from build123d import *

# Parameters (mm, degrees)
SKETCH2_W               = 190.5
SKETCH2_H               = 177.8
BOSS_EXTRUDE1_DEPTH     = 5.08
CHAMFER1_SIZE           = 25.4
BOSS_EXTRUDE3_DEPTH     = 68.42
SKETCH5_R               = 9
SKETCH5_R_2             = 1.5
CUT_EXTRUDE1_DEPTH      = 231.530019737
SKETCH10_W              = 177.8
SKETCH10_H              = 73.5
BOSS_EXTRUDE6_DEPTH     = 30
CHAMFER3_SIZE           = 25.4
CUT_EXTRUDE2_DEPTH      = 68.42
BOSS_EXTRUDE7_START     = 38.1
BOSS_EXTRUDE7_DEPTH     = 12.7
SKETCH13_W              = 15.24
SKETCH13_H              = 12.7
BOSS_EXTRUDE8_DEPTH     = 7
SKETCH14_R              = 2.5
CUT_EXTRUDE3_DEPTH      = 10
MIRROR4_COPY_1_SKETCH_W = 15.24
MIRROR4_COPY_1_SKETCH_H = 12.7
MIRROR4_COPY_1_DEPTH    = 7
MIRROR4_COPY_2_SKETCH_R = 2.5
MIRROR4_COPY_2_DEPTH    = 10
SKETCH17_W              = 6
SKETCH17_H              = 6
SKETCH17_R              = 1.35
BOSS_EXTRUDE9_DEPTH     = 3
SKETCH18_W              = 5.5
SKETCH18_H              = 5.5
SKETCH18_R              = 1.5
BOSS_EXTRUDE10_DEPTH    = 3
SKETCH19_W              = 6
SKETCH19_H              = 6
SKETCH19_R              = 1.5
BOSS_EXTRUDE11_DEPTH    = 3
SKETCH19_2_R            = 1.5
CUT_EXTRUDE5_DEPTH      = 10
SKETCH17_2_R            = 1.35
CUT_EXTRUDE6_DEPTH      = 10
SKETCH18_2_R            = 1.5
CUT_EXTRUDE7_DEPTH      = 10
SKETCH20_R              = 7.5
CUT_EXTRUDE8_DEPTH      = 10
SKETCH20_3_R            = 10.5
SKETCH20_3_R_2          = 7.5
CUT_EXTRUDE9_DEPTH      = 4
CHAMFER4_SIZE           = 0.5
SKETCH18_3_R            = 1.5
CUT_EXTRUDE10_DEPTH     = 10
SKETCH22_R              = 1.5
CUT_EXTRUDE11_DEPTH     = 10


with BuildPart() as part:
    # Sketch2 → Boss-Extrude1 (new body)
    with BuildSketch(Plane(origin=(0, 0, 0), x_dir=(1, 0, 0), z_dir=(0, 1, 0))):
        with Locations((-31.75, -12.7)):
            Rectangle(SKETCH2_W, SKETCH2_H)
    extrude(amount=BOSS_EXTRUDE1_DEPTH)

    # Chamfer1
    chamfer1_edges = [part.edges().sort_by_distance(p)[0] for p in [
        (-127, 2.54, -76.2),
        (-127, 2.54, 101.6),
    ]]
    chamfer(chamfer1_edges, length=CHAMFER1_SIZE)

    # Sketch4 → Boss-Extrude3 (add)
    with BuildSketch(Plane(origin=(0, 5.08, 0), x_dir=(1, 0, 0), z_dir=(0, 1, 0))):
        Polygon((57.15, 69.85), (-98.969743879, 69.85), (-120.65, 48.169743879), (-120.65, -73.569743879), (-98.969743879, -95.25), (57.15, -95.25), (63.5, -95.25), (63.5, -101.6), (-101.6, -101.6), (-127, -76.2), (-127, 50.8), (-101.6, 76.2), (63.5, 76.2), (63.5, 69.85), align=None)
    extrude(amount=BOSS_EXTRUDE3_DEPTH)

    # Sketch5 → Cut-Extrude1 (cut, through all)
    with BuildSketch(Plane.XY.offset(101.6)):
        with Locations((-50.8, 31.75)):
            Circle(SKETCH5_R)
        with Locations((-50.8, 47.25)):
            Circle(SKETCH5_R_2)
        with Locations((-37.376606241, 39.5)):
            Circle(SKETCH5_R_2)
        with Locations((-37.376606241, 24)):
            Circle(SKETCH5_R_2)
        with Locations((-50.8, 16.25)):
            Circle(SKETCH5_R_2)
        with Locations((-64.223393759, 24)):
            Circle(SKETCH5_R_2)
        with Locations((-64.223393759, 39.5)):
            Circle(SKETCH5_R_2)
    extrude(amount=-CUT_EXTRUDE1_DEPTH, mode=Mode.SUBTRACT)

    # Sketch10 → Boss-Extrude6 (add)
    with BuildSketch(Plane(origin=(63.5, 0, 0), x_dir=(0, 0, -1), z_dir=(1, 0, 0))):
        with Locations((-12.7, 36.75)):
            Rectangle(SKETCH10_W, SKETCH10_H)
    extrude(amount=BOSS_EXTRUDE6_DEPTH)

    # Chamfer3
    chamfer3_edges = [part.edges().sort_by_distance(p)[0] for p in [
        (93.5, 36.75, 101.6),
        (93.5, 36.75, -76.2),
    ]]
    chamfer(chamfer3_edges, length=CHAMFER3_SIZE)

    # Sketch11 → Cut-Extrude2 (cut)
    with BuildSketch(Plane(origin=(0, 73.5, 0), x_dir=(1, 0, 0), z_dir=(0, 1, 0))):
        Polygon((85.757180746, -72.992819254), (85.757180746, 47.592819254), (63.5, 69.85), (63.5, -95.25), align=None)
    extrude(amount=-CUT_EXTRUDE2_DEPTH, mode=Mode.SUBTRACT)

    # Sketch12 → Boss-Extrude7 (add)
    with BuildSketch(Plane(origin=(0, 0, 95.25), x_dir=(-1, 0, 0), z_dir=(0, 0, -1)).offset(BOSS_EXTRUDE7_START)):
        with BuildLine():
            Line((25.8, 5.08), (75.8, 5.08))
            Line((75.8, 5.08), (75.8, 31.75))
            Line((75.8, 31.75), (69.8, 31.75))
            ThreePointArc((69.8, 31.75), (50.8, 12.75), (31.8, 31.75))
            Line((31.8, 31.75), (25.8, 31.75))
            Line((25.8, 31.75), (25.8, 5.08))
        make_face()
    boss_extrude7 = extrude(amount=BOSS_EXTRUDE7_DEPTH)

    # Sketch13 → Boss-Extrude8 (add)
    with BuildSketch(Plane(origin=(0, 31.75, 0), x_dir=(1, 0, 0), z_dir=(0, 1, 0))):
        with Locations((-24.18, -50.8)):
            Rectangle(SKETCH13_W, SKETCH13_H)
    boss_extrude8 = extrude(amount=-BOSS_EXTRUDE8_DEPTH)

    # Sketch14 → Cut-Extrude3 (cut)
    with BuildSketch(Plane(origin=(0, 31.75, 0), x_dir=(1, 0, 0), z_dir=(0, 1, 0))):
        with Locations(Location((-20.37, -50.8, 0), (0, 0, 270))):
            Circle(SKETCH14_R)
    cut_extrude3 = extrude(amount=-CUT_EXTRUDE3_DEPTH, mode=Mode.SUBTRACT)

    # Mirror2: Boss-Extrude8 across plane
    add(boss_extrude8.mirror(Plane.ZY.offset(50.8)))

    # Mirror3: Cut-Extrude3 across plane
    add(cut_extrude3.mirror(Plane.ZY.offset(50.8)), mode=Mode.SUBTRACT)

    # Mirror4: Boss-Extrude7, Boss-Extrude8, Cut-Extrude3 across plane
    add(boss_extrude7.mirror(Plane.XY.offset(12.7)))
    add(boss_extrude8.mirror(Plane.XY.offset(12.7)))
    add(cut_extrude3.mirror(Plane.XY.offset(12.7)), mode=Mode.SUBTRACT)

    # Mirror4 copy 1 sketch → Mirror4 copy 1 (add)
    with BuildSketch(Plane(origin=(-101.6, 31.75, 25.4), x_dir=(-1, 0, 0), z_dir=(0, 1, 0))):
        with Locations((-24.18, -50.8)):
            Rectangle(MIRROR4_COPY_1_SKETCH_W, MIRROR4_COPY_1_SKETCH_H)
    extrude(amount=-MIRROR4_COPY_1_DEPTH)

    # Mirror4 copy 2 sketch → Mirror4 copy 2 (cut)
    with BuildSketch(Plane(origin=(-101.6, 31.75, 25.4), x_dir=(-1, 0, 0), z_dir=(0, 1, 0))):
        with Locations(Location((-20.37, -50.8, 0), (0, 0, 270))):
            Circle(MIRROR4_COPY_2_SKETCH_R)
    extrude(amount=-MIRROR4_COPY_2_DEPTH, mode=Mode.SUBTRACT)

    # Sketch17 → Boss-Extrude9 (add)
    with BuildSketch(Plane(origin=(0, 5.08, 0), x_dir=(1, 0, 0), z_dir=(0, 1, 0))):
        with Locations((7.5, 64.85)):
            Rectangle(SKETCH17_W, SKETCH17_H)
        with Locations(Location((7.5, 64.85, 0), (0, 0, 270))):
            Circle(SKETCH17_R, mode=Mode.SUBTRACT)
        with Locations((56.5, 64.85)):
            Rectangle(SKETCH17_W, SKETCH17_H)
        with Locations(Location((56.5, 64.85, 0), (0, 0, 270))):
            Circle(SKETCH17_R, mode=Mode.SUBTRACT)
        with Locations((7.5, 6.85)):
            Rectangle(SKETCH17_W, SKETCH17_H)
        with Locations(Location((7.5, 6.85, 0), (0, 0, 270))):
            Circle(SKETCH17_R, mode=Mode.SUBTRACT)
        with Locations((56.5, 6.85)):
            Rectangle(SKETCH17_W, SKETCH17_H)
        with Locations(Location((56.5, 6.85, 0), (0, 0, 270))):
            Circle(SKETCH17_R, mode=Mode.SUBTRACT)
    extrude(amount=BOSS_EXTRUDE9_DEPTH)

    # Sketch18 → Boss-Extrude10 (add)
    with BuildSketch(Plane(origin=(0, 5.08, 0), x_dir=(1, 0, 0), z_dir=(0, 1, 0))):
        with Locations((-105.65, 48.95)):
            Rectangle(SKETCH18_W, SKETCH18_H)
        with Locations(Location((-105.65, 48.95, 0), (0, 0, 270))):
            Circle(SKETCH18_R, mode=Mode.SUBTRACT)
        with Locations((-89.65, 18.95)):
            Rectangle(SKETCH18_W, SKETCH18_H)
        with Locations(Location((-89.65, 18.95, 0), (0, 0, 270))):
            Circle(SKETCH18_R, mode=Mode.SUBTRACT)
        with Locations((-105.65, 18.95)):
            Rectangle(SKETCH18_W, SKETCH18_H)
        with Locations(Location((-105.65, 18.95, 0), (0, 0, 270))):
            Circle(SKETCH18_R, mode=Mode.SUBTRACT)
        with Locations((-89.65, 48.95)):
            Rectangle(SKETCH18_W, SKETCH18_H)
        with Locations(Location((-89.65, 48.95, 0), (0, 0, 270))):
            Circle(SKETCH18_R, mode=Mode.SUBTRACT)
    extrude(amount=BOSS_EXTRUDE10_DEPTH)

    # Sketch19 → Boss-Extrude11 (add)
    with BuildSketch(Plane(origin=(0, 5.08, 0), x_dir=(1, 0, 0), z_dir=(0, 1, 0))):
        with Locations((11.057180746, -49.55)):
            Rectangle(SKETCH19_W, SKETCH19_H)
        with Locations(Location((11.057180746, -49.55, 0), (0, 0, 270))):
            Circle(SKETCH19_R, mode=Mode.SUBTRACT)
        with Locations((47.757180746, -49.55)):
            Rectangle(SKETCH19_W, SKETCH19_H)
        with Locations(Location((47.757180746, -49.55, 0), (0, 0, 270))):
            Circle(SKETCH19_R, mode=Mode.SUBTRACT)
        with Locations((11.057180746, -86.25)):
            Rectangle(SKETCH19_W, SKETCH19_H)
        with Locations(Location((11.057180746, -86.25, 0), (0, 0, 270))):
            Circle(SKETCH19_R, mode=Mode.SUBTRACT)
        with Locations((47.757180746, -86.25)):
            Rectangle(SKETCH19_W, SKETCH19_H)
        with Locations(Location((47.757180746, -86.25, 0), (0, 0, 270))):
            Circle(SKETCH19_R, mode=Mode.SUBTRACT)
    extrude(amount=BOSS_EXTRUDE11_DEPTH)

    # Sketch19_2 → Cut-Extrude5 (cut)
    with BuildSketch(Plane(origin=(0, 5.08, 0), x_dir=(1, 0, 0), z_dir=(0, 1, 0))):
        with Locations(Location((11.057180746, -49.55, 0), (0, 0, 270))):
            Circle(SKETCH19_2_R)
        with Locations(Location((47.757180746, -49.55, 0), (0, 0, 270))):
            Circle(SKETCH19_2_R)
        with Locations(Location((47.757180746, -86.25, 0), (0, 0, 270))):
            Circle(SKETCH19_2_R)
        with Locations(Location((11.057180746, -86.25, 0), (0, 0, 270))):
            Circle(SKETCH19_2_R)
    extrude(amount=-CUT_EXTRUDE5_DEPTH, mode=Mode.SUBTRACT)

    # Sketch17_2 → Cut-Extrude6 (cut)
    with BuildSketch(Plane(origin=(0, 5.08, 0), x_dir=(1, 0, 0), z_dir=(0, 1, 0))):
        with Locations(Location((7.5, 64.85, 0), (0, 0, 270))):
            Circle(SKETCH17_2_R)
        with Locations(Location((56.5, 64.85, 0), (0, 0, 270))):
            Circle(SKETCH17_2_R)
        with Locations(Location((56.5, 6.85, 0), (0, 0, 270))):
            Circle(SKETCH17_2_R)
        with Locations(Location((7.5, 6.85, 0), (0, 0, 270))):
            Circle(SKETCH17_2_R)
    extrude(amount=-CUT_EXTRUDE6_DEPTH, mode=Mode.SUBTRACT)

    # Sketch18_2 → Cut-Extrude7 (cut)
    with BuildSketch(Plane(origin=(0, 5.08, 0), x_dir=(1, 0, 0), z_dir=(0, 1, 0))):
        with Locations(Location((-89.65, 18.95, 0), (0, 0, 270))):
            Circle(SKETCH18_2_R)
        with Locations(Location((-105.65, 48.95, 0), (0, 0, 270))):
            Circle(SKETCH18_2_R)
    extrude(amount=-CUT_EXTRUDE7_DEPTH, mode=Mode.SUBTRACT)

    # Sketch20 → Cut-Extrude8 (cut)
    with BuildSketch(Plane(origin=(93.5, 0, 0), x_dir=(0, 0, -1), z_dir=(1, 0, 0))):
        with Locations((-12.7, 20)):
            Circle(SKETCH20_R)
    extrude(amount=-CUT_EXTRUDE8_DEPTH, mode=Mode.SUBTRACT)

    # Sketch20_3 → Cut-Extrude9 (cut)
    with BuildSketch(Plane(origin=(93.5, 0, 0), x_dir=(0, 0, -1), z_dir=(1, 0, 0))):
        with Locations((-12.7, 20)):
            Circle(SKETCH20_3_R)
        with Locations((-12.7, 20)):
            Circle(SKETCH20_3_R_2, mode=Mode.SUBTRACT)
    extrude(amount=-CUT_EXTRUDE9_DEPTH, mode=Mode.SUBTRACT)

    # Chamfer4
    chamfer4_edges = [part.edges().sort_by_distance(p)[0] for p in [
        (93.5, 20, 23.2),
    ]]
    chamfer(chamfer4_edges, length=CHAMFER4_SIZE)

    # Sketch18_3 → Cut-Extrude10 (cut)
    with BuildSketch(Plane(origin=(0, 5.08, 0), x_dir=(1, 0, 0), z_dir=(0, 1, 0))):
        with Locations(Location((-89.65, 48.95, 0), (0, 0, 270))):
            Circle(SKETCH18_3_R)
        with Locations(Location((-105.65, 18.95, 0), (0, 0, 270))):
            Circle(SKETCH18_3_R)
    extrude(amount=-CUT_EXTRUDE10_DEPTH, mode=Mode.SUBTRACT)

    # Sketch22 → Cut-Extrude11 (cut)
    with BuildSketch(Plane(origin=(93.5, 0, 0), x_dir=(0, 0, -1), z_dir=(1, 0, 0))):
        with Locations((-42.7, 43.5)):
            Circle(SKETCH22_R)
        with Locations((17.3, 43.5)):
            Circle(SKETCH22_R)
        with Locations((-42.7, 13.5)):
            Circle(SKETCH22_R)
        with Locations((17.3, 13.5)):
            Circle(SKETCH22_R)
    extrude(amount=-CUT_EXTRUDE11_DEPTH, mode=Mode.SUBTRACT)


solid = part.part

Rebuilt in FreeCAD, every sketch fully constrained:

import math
import FreeCAD as App
import Part
import Sketcher
Q = App.Units.Quantity


def edges_at(feature, points):
    """Names of the edges that pass closest to the given points."""
    edges = feature.Shape.Edges
    near = lambda p: min(range(len(edges)), key=lambda i: edges[i].distToShape(Part.Vertex(*p))[0])
    return sorted({f"Edge{near(p) + 1}" for p in points})


def add_polygon(sketch, points):
    """Adds a closed chain of lines whose ends are joined by coincident constraints."""
    first, n = sketch.GeometryCount, len(points)
    for a, b in zip(points, points[1:] + points[:1]):
        sketch.addGeometry(Part.LineSegment(App.Vector(*a, 0), App.Vector(*b, 0)), False)
    for i in range(n):
        sketch.addConstraint(Sketcher.Constraint("Coincident", first + i, 2, first + (i + 1) % n, 1))

doc = App.newDocument("Part")
body = doc.addObject("PartDesign::Body", "Body")

# Sketch on XZ plane
sketch1 = body.newObject("Sketcher::SketchObject", "Sketch")
sketch1.AttachmentSupport = (doc.getObject("XZ_Plane"), [""])
sketch1.MapMode = "FlatFace"
add_polygon(sketch1, [(-127, -76), (-127, 102), (64, 102), (64, -76)])  # lines 0-3
sketch1.addConstraint([
    Sketcher.Constraint("Vertical", 0),
    Sketcher.Constraint("Horizontal", 1),
    Sketcher.Constraint("Vertical", 2),
    Sketcher.Constraint("Horizontal", 3),
    Sketcher.Constraint("DistanceX", 1, 1, 1, 2, Q("190.5 mm")),
    Sketcher.Constraint("DistanceY", 0, 1, 0, 2, Q("177.8 mm")),
    Sketcher.Constraint("DistanceX", 0, 2, -1, 1, Q("127 mm")),
    Sketcher.Constraint("DistanceY", -1, 1, 0, 2, Q("101.6 mm")),
])
pad1 = body.newObject("PartDesign::Pad", "Pad")
pad1.Profile = sketch1
pad1.Length = 5.08
pad1.Reversed = True
doc.recompute()

chamfer = body.newObject("PartDesign::Chamfer", "Chamfer")
chamfer.Base = (pad1, edges_at(pad1, [(-127, 2.54, -76.2), (-127, 2.54, 101.6)]))
chamfer.Size = 25.4

# Sketch on XZ plane
sketch2 = body.newObject("Sketcher::SketchObject", "Sketch001")
sketch2.AttachmentSupport = (doc.getObject("XZ_Plane"), [""])
sketch2.MapMode = "FlatFace"
sketch2.AttachmentOffset = App.Placement(App.Vector(0, 0, -5.08), App.Rotation())
add_polygon(sketch2, [(-99, -70), (64, -70), (64, -76), (-102, -76), (-127, -51), (-127, 76), (-102, 102), (64, 102), (64, 95), (-99, 95), (-121, 74), (-121, -48)])  # lines 0-11
sketch2.addConstraint([
    Sketcher.Constraint("Horizontal", 0),
    Sketcher.Constraint("Vertical", 1),
    Sketcher.Constraint("Horizontal", 2),
    Sketcher.Constraint("Vertical", 4),
    Sketcher.Constraint("Horizontal", 6),
    Sketcher.Constraint("Vertical", 7),
    Sketcher.Constraint("Horizontal", 8),
    Sketcher.Constraint("Vertical", 10),
    Sketcher.Constraint("Perpendicular", 3, 5),
    Sketcher.Constraint("Parallel", 5, 9),
    Sketcher.Constraint("Perpendicular", 9, 11),
    Sketcher.Constraint("Vertical", 2, 2, 5, 2),
    Sketcher.Constraint("Vertical", 1, 2, 6, 2),
    Sketcher.Constraint("Vertical", 8, 2, 11, 2),
    Sketcher.Constraint("Equal", 1, 7),
    Sketcher.Constraint("Equal", 3, 5),
    Sketcher.Constraint("DistanceY", 4, 1, 4, 2, Q("127 mm")),
    Sketcher.Constraint("DistanceX", 2, 2, 2, 1, Q("165.1 mm")),
    Sketcher.Constraint("DistanceX", 3, 2, -1, 1, Q("127 mm")),
    Sketcher.Constraint("DistanceY", 1, 2, 1, 1, Q("6.35 mm")),
    Sketcher.Constraint("DistanceX", -1, 1, 0, 2, Q("63.5 mm")),
    Sketcher.Constraint("DistanceY", 1, 2, -1, 1, Q("76.2 mm")),
    Sketcher.Constraint("DistanceX", 9, 2, -1, 1, Q("120.65 mm")),
    Sketcher.Constraint("DistanceX", 0, 1, 0, 2, Q("162.469744 mm")),
])
pad2 = body.newObject("PartDesign::Pad", "Pad001")
pad2.Profile = sketch2
pad2.Length = 68.42
pad2.Reversed = True

# Sketch on XY plane
sketch3 = body.newObject("Sketcher::SketchObject", "Sketch002")
sketch3.AttachmentSupport = (doc.getObject("XY_Plane"), [""])
sketch3.MapMode = "FlatFace"
sketch3.AttachmentOffset = App.Placement(App.Vector(0, 0, 101.6), App.Rotation())
sketch3.addGeometry([
    Part.Circle(App.Vector(-50.8, 31.8, 0), App.Vector(0, 0, 1), 9),  # 0
    Part.Circle(App.Vector(-50.8, 47.2, 0), App.Vector(0, 0, 1), 1.5),  # 1
    Part.Circle(App.Vector(-37.4, 39.5, 0), App.Vector(0, 0, 1), 1.5),  # 2
    Part.Circle(App.Vector(-37.4, 24, 0), App.Vector(0, 0, 1), 1.5),  # 3
    Part.Circle(App.Vector(-50.8, 16.2, 0), App.Vector(0, 0, 1), 1.5),  # 4
    Part.Circle(App.Vector(-64.2, 24, 0), App.Vector(0, 0, 1), 1.5),  # 5
    Part.Circle(App.Vector(-64.2, 39.5, 0), App.Vector(0, 0, 1), 1.5),  # 6
], False)
sketch3.addConstraint([
    Sketcher.Constraint("Equal", 1, 2),
    Sketcher.Constraint("Equal", 2, 3),
    Sketcher.Constraint("Equal", 3, 4),
    Sketcher.Constraint("Equal", 4, 5),
    Sketcher.Constraint("Equal", 5, 6),
    Sketcher.Constraint("Horizontal", 3, 3, 5, 3),
    Sketcher.Constraint("Horizontal", 2, 3, 6, 3),
    Sketcher.Constraint("Vertical", 0, 3, 1, 3),
    Sketcher.Constraint("Vertical", 2, 3, 3, 3),
    Sketcher.Constraint("Vertical", 1, 3, 4, 3),
    Sketcher.Constraint("Vertical", 5, 3, 6, 3),
    Sketcher.Constraint("Diameter", 0, Q("18 mm")),
    Sketcher.Constraint("Diameter", 1, Q("3 mm")),
    Sketcher.Constraint("DistanceY", -1, 1, 3, 3, Q("24 mm")),
    Sketcher.Constraint("DistanceY", 4, 3, 1, 3, Q("31 mm")),
    Sketcher.Constraint("DistanceX", 0, 3, -1, 1, Q("50.8 mm")),
    Sketcher.Constraint("DistanceY", -1, 1, 2, 3, Q("39.5 mm")),
    Sketcher.Constraint("DistanceY", 0, 3, 1, 3, Q("15.5 mm")),
    Sketcher.Constraint("DistanceY", -1, 1, 0, 3, Q("31.75 mm")),
    Sketcher.Constraint("DistanceX", 2, 3, -1, 1, Q("37.376606 mm")),
    Sketcher.Constraint("DistanceX", 5, 3, -1, 1, Q("64.223394 mm")),
])
pocket1 = body.newObject("PartDesign::Pocket", "Pocket")
pocket1.Profile = sketch3
pocket1.Type = "ThroughAll"

# Sketch on YZ plane
sketch4 = body.newObject("Sketcher::SketchObject", "Sketch003")
sketch4.AttachmentSupport = (doc.getObject("YZ_Plane"), [""])
sketch4.MapMode = "FlatFace"
sketch4.AttachmentOffset = App.Placement(App.Vector(0, 0, 63.5), App.Rotation())
add_polygon(sketch4, [(74, 102), (0, 102), (0, -76), (74, -76)])  # lines 0-3
sketch4.addConstraint([
    Sketcher.Constraint("Horizontal", 0),
    Sketcher.Constraint("Vertical", 1),
    Sketcher.Constraint("Horizontal", 2),
    Sketcher.Constraint("Vertical", 3),
    Sketcher.Constraint("PointOnObject", 0, 2, -2),
    Sketcher.Constraint("DistanceX", 0, 2, 0, 1, Q("73.5 mm")),
    Sketcher.Constraint("DistanceY", 1, 2, 1, 1, Q("177.8 mm")),
    Sketcher.Constraint("DistanceY", -1, 1, 0, 2, Q("101.6 mm")),
])
pad3 = body.newObject("PartDesign::Pad", "Pad002")
pad3.Profile = sketch4
pad3.Length = 30
doc.recompute()

chamfer2 = body.newObject("PartDesign::Chamfer", "Chamfer001")
chamfer2.Base = (pad3, edges_at(pad3, [(93.5, 36.75, 101.6), (93.5, 36.75, -76.2)]))
chamfer2.Size = 25.4

# Sketch on XZ plane
sketch5 = body.newObject("Sketcher::SketchObject", "Sketch004")
sketch5.AttachmentSupport = (doc.getObject("XZ_Plane"), [""])
sketch5.MapMode = "FlatFace"
sketch5.AttachmentOffset = App.Placement(App.Vector(0, 0, -73.5), App.Rotation())
add_polygon(sketch5, [(86, 73), (86, -48), (64, -70), (64, 95)])  # lines 0-3
sketch5.addConstraint([
    Sketcher.Constraint("Vertical", 0),
    Sketcher.Constraint("Vertical", 2),
    Sketcher.Constraint("Perpendicular", 1, 3),
    Sketcher.Constraint("Equal", 1, 3),
    Sketcher.Constraint("DistanceY", 2, 1, 2, 2, Q("165.1 mm")),
    Sketcher.Constraint("DistanceX", -1, 1, 1, 2, Q("63.5 mm")),
    Sketcher.Constraint("DistanceY", 1, 2, -1, 1, Q("69.85 mm")),
    Sketcher.Constraint("DistanceY", 0, 2, 0, 1, Q("120.585639 mm")),
])
pocket2 = body.newObject("PartDesign::Pocket", "Pocket001")
pocket2.Profile = sketch5
pocket2.Length = 68.42
pocket2.Reversed = True

# Sketch on XY plane
sketch6 = body.newObject("Sketcher::SketchObject", "Sketch005")
sketch6.AttachmentSupport = (doc.getObject("XY_Plane"), [""])
sketch6.MapMode = "FlatFace"
sketch6.AttachmentOffset = App.Placement(App.Vector(0, 0, 57.15), App.Rotation())
sketch6.addGeometry([
    Part.LineSegment(App.Vector(-26, 5, 0), App.Vector(-76, 5, 0)),  # 0
    Part.LineSegment(App.Vector(-76, 5, 0), App.Vector(-76, 32, 0)),  # 1
    Part.LineSegment(App.Vector(-76, 32, 0), App.Vector(-70, 32, 0)),  # 2
    Part.ArcOfCircle(Part.Circle(App.Vector(-51, 32, 0), App.Vector(0, 0, 1), 19), math.radians(180), math.radians(360)),  # 3
    Part.LineSegment(App.Vector(-32, 32, 0), App.Vector(-26, 32, 0)),  # 4
    Part.LineSegment(App.Vector(-26, 32, 0), App.Vector(-26, 5, 0)),  # 5
], False)
sketch6.addConstraint([
    Sketcher.Constraint("Coincident", 0, 2, 1, 1),
    Sketcher.Constraint("Coincident", 1, 2, 2, 1),
    Sketcher.Constraint("Coincident", 2, 2, 3, 1),
    Sketcher.Constraint("Coincident", 3, 2, 4, 1),
    Sketcher.Constraint("Coincident", 4, 2, 5, 1),
    Sketcher.Constraint("Coincident", 5, 2, 0, 1),
    Sketcher.Constraint("Horizontal", 0),
    Sketcher.Constraint("Vertical", 1),
    Sketcher.Constraint("Horizontal", 2),
    Sketcher.Constraint("Horizontal", 4),
    Sketcher.Constraint("Vertical", 5),
    Sketcher.Constraint("Horizontal", 3, 3, 1, 2),
    Sketcher.Constraint("Horizontal", 2, 2, 3, 2),
    Sketcher.Constraint("Equal", 2, 4),
    Sketcher.Constraint("Radius", 3, Q("19 mm")),
    Sketcher.Constraint("DistanceX", 0, 2, 0, 1, Q("50 mm")),
    Sketcher.Constraint("DistanceY", 1, 1, 1, 2, Q("26.67 mm")),
    Sketcher.Constraint("DistanceX", 3, 3, -1, 1, Q("50.8 mm")),
    Sketcher.Constraint("DistanceY", -1, 1, 3, 3, Q("31.75 mm")),
])
pad4 = body.newObject("PartDesign::Pad", "Pad003")
pad4.Profile = sketch6
pad4.Length = 12.7
pad4.Reversed = True

# Sketch on XZ plane
sketch7 = body.newObject("Sketcher::SketchObject", "Sketch006")
sketch7.AttachmentSupport = (doc.getObject("XZ_Plane"), [""])
sketch7.MapMode = "FlatFace"
sketch7.AttachmentOffset = App.Placement(App.Vector(0, 0, -31.75), App.Rotation())
add_polygon(sketch7, [(-32, 44), (-32, 57), (-17, 57), (-17, 44)])  # lines 0-3
sketch7.addConstraint([
    Sketcher.Constraint("Vertical", 0),
    Sketcher.Constraint("Horizontal", 1),
    Sketcher.Constraint("Vertical", 2),
    Sketcher.Constraint("Horizontal", 3),
    Sketcher.Constraint("DistanceY", 0, 1, 0, 2, Q("12.7 mm")),
    Sketcher.Constraint("DistanceX", 1, 1, 1, 2, Q("15.24 mm")),
    Sketcher.Constraint("DistanceX", 0, 2, -1, 1, Q("31.8 mm")),
    Sketcher.Constraint("DistanceY", -1, 1, 0, 2, Q("57.15 mm")),
])
pad5 = body.newObject("PartDesign::Pad", "Pad004")
pad5.Profile = sketch7
pad5.Length = 7

# Sketch on XZ plane
sketch8 = body.newObject("Sketcher::SketchObject", "Sketch007")
sketch8.AttachmentSupport = (doc.getObject("XZ_Plane"), [""])
sketch8.MapMode = "FlatFace"
sketch8.AttachmentOffset = App.Placement(App.Vector(0, 0, -31.75), App.Rotation())
sketch8.addGeometry(Part.Circle(App.Vector(-20.4, 50.8, 0), App.Vector(0, 0, 1), 2.5), False)
sketch8.addConstraint([
    Sketcher.Constraint("Diameter", 0, Q("5 mm")),
    Sketcher.Constraint("DistanceY", -1, 1, 0, 3, Q("50.8 mm")),
    Sketcher.Constraint("DistanceX", 0, 3, -1, 1, Q("20.37 mm")),
])
pocket3 = body.newObject("PartDesign::Pocket", "Pocket002")
pocket3.Profile = sketch8
pocket3.Length = 10
pocket3.Reversed = True
doc.recompute()

datumplane = body.newObject("PartDesign::Plane", "DatumPlane")
datumplane.AttachmentSupport = (doc.getObject("YZ_Plane"), [""])
datumplane.MapMode = "FlatFace"
datumplane.AttachmentOffset = App.Placement(App.Vector(0, 0, -50.8), App.Rotation())
mirrored = body.newObject("PartDesign::Mirrored", "Mirrored")
mirrored.Originals = [pad5]
mirrored.MirrorPlane = (datumplane, [""])
body.Tip = mirrored
doc.recompute()

datumplane2 = body.newObject("PartDesign::Plane", "DatumPlane001")
datumplane2.AttachmentSupport = (doc.getObject("YZ_Plane"), [""])
datumplane2.MapMode = "FlatFace"
datumplane2.AttachmentOffset = App.Placement(App.Vector(0, 0, -50.8), App.Rotation())
mirrored2 = body.newObject("PartDesign::Mirrored", "Mirrored001")
mirrored2.Originals = [pocket3]
mirrored2.MirrorPlane = (datumplane2, [""])
body.Tip = mirrored2
doc.recompute()

datumplane3 = body.newObject("PartDesign::Plane", "DatumPlane002")
datumplane3.AttachmentSupport = (doc.getObject("XY_Plane"), [""])
datumplane3.MapMode = "FlatFace"
datumplane3.AttachmentOffset = App.Placement(App.Vector(0, 0, 12.7), App.Rotation())
mirrored3 = body.newObject("PartDesign::Mirrored", "Mirrored002")
mirrored3.Originals = [pad4, pad5, pocket3]
mirrored3.MirrorPlane = (datumplane3, [""])
body.Tip = mirrored3

# Sketch on XZ plane
sketch9 = body.newObject("Sketcher::SketchObject", "Sketch008")
sketch9.AttachmentSupport = (doc.getObject("XZ_Plane"), [""])
sketch9.MapMode = "FlatFace"
sketch9.AttachmentOffset = App.Placement(App.Vector(0, 0, -31.75), App.Rotation())
add_polygon(sketch9, [(-70, -19), (-70, -32), (-85, -32), (-85, -19)])  # lines 0-3
sketch9.addConstraint([
    Sketcher.Constraint("Vertical", 0),
    Sketcher.Constraint("Horizontal", 1),
    Sketcher.Constraint("Vertical", 2),
    Sketcher.Constraint("Horizontal", 3),
    Sketcher.Constraint("DistanceY", 0, 2, 0, 1, Q("12.7 mm")),
    Sketcher.Constraint("DistanceX", 1, 2, 1, 1, Q("15.24 mm")),
    Sketcher.Constraint("DistanceX", 0, 2, -1, 1, Q("69.8 mm")),
    Sketcher.Constraint("DistanceY", 0, 2, -1, 1, Q("31.75 mm")),
])
pad6 = body.newObject("PartDesign::Pad", "Pad005")
pad6.Profile = sketch9
pad6.Length = 7

# Sketch on XZ plane
sketch10 = body.newObject("Sketcher::SketchObject", "Sketch009")
sketch10.AttachmentSupport = (doc.getObject("XZ_Plane"), [""])
sketch10.MapMode = "FlatFace"
sketch10.AttachmentOffset = App.Placement(App.Vector(0, 0, -31.75), App.Rotation())
sketch10.addGeometry(Part.Circle(App.Vector(-81.2, -25.4, 0), App.Vector(0, 0, 1), 2.5), False)
sketch10.addConstraint([
    Sketcher.Constraint("Diameter", 0, Q("5 mm")),
    Sketcher.Constraint("DistanceY", 0, 3, -1, 1, Q("25.4 mm")),
    Sketcher.Constraint("DistanceX", 0, 3, -1, 1, Q("81.23 mm")),
])
pocket4 = body.newObject("PartDesign::Pocket", "Pocket003")
pocket4.Profile = sketch10
pocket4.Length = 10
pocket4.Reversed = True

# Sketch on XZ plane
sketch11 = body.newObject("Sketcher::SketchObject", "Sketch010")
sketch11.AttachmentSupport = (doc.getObject("XZ_Plane"), [""])
sketch11.MapMode = "FlatFace"
sketch11.AttachmentOffset = App.Placement(App.Vector(0, 0, -5.08), App.Rotation())
add_polygon(sketch11, [(4.5, -67.8), (4.5, -61.9), (10.5, -61.9), (10.5, -67.8)])  # lines 0-3
sketch11.addGeometry(Part.Circle(App.Vector(7.5, -64.8, 0), App.Vector(0, 0, 1), 1.4), False)  # 4
add_polygon(sketch11, [(53.5, -67.8), (53.5, -61.9), (59.5, -61.9), (59.5, -67.8)])  # lines 5-8
sketch11.addGeometry(Part.Circle(App.Vector(56.5, -64.8, 0), App.Vector(0, 0, 1), 1.4), False)  # 9
add_polygon(sketch11, [(4.5, -9.8), (4.5, -3.9), (10.5, -3.9), (10.5, -9.8)])  # lines 10-13
sketch11.addGeometry(Part.Circle(App.Vector(7.5, -6.8, 0), App.Vector(0, 0, 1), 1.4), False)  # 14
add_polygon(sketch11, [(53.5, -9.8), (53.5, -3.9), (59.5, -3.9), (59.5, -9.8)])  # lines 15-18
sketch11.addGeometry(Part.Circle(App.Vector(56.5, -6.8, 0), App.Vector(0, 0, 1), 1.4), False)  # 19
sketch11.addConstraint([
    Sketcher.Constraint("Vertical", 0),
    Sketcher.Constraint("Horizontal", 1),
    Sketcher.Constraint("Vertical", 2),
    Sketcher.Constraint("Horizontal", 3),
    Sketcher.Constraint("Vertical", 5),
    Sketcher.Constraint("Horizontal", 6),
    Sketcher.Constraint("Vertical", 7),
    Sketcher.Constraint("Horizontal", 8),
    Sketcher.Constraint("Vertical", 10),
    Sketcher.Constraint("Horizontal", 11),
    Sketcher.Constraint("Vertical", 12),
    Sketcher.Constraint("Horizontal", 13),
    Sketcher.Constraint("Vertical", 15),
    Sketcher.Constraint("Horizontal", 16),
    Sketcher.Constraint("Vertical", 17),
    Sketcher.Constraint("Horizontal", 18),
    Sketcher.Constraint("Equal", 4, 9),
    Sketcher.Constraint("Equal", 9, 14),
    Sketcher.Constraint("Equal", 14, 19),
    Sketcher.Constraint("Horizontal", 4, 3, 9, 3),
    Sketcher.Constraint("Horizontal", 14, 3, 19, 3),
    Sketcher.Constraint("Horizontal", 1, 2, 5, 2),
    Sketcher.Constraint("Horizontal", 3, 2, 7, 2),
    Sketcher.Constraint("Horizontal", 11, 2, 15, 2),
    Sketcher.Constraint("Horizontal", 13, 2, 17, 2),
    Sketcher.Constraint("Vertical", 4, 3, 14, 3),
    Sketcher.Constraint("Vertical", 9, 3, 19, 3),
    Sketcher.Constraint("Vertical", 3, 2, 10, 2),
    Sketcher.Constraint("Vertical", 2, 2, 11, 2),
    Sketcher.Constraint("Vertical", 8, 2, 15, 2),
    Sketcher.Constraint("Vertical", 7, 2, 16, 2),
    Sketcher.Constraint("Equal", 3, 6),
    Sketcher.Constraint("Equal", 18, 0),
    Sketcher.Constraint("Equal", 7, 10),
    Sketcher.Constraint("Diameter", 4, Q("2.7 mm")),
    Sketcher.Constraint("DistanceX", 1, 1, 1, 2, Q("6 mm")),
    Sketcher.Constraint("DistanceX", 4, 3, 9, 3, Q("49 mm")),
    Sketcher.Constraint("DistanceY", 4, 3, 14, 3, Q("58 mm")),
    Sketcher.Constraint("DistanceX", 0, 2, 4, 3, Q("3 mm")),
    Sketcher.Constraint("DistanceY", 4, 3, 0, 2, Q("3 mm")),
    Sketcher.Constraint("DistanceX", 5, 2, 9, 3, Q("3 mm")),
    Sketcher.Constraint("DistanceY", 14, 3, 10, 2, Q("3 mm")),
    Sketcher.Constraint("DistanceX", -1, 1, 4, 3, Q("7.5 mm")),
    Sketcher.Constraint("DistanceY", 4, 3, -1, 1, Q("64.85 mm")),
])
pad7 = body.newObject("PartDesign::Pad", "Pad006")
pad7.Profile = sketch11
pad7.Length = 3
pad7.Reversed = True

# Sketch on XZ plane
sketch12 = body.newObject("Sketcher::SketchObject", "Sketch011")
sketch12.AttachmentSupport = (doc.getObject("XZ_Plane"), [""])
sketch12.MapMode = "FlatFace"
sketch12.AttachmentOffset = App.Placement(App.Vector(0, 0, -5.08), App.Rotation())
add_polygon(sketch12, [(-108.4, -51.7), (-108.4, -46.2), (-102.9, -46.2), (-102.9, -51.7)])  # lines 0-3
sketch12.addGeometry(Part.Circle(App.Vector(-105.7, -49, 0), App.Vector(0, 0, 1), 1.5), False)  # 4
add_polygon(sketch12, [(-92.4, -21.7), (-92.4, -16.2), (-86.9, -16.2), (-86.9, -21.7)])  # lines 5-8
sketch12.addGeometry(Part.Circle(App.Vector(-89.7, -18.9, 0), App.Vector(0, 0, 1), 1.5), False)  # 9
add_polygon(sketch12, [(-108.4, -21.7), (-108.4, -16.2), (-102.9, -16.2), (-102.9, -21.7)])  # lines 10-13
sketch12.addGeometry(Part.Circle(App.Vector(-105.7, -18.9, 0), App.Vector(0, 0, 1), 1.5), False)  # 14
add_polygon(sketch12, [(-92.4, -51.7), (-92.4, -46.2), (-86.9, -46.2), (-86.9, -51.7)])  # lines 15-18
sketch12.addGeometry(Part.Circle(App.Vector(-89.7, -49, 0), App.Vector(0, 0, 1), 1.5), False)  # 19
sketch12.addConstraint([
    Sketcher.Constraint("Vertical", 0),
    Sketcher.Constraint("Horizontal", 1),
    Sketcher.Constraint("Vertical", 2),
    Sketcher.Constraint("Horizontal", 3),
    Sketcher.Constraint("Vertical", 5),
    Sketcher.Constraint("Horizontal", 6),
    Sketcher.Constraint("Vertical", 7),
    Sketcher.Constraint("Horizontal", 8),
    Sketcher.Constraint("Vertical", 10),
    Sketcher.Constraint("Horizontal", 11),
    Sketcher.Constraint("Vertical", 12),
    Sketcher.Constraint("Horizontal", 13),
    Sketcher.Constraint("Vertical", 15),
    Sketcher.Constraint("Horizontal", 16),
    Sketcher.Constraint("Vertical", 17),
    Sketcher.Constraint("Horizontal", 18),
    Sketcher.Constraint("Equal", 4, 9),
    Sketcher.Constraint("Equal", 9, 14),
    Sketcher.Constraint("Equal", 14, 19),
    Sketcher.Constraint("Horizontal", 9, 3, 14, 3),
    Sketcher.Constraint("Horizontal", 4, 3, 19, 3),
    Sketcher.Constraint("Horizontal", 6, 2, 10, 2),
    Sketcher.Constraint("Horizontal", 8, 2, 12, 2),
    Sketcher.Constraint("Horizontal", 1, 2, 15, 2),
    Sketcher.Constraint("Horizontal", 3, 2, 17, 2),
    Sketcher.Constraint("Vertical", 4, 3, 14, 3),
    Sketcher.Constraint("Vertical", 9, 3, 19, 3),
    Sketcher.Constraint("Vertical", 3, 2, 10, 2),
    Sketcher.Constraint("Vertical", 2, 2, 11, 2),
    Sketcher.Constraint("Vertical", 8, 2, 15, 2),
    Sketcher.Constraint("Vertical", 7, 2, 16, 2),
    Sketcher.Constraint("Equal", 3, 6),
    Sketcher.Constraint("Equal", 18, 0),
    Sketcher.Constraint("Equal", 2, 5),
    Sketcher.Constraint("Diameter", 4, Q("3 mm")),
    Sketcher.Constraint("DistanceX", 1, 1, 1, 2, Q("5.5 mm")),
    Sketcher.Constraint("DistanceX", 4, 3, 9, 3, Q("16 mm")),
    Sketcher.Constraint("DistanceY", 4, 3, 9, 3, Q("30 mm")),
    Sketcher.Constraint("DistanceY", 1, 2, 5, 2, Q("30 mm")),
    Sketcher.Constraint("DistanceX", 0, 2, 5, 2, Q("16 mm")),
    Sketcher.Constraint("DistanceX", 0, 2, -1, 1, Q("108.4 mm")),
    Sketcher.Constraint("DistanceY", 0, 2, -1, 1, Q("46.2 mm")),
    Sketcher.Constraint("DistanceX", 4, 3, -1, 1, Q("105.65 mm")),
    Sketcher.Constraint("DistanceY", 4, 3, -1, 1, Q("48.95 mm")),
])
pad8 = body.newObject("PartDesign::Pad", "Pad007")
pad8.Profile = sketch12
pad8.Length = 3
pad8.Reversed = True

# Sketch on XZ plane
sketch13 = body.newObject("Sketcher::SketchObject", "Sketch012")
sketch13.AttachmentSupport = (doc.getObject("XZ_Plane"), [""])
sketch13.MapMode = "FlatFace"
sketch13.AttachmentOffset = App.Placement(App.Vector(0, 0, -5.08), App.Rotation())
add_polygon(sketch13, [(8.1, 46.5), (8.1, 52.5), (14.1, 52.5), (14.1, 46.5)])  # lines 0-3
sketch13.addGeometry(Part.Circle(App.Vector(11.1, 49.5, 0), App.Vector(0, 0, 1), 1.5), False)  # 4
add_polygon(sketch13, [(44.8, 46.5), (44.8, 52.5), (50.8, 52.5), (50.8, 46.5)])  # lines 5-8
sketch13.addGeometry(Part.Circle(App.Vector(47.8, 49.5, 0), App.Vector(0, 0, 1), 1.5), False)  # 9
add_polygon(sketch13, [(8.1, 83.2), (8.1, 89.2), (14.1, 89.2), (14.1, 83.2)])  # lines 10-13
sketch13.addGeometry(Part.Circle(App.Vector(11.1, 86.2, 0), App.Vector(0, 0, 1), 1.5), False)  # 14
add_polygon(sketch13, [(44.8, 83.2), (44.8, 89.2), (50.8, 89.2), (50.8, 83.2)])  # lines 15-18
sketch13.addGeometry(Part.Circle(App.Vector(47.8, 86.2, 0), App.Vector(0, 0, 1), 1.5), False)  # 19
sketch13.addConstraint([
    Sketcher.Constraint("Vertical", 0),
    Sketcher.Constraint("Horizontal", 1),
    Sketcher.Constraint("Vertical", 2),
    Sketcher.Constraint("Horizontal", 3),
    Sketcher.Constraint("Vertical", 5),
    Sketcher.Constraint("Horizontal", 6),
    Sketcher.Constraint("Vertical", 7),
    Sketcher.Constraint("Horizontal", 8),
    Sketcher.Constraint("Vertical", 10),
    Sketcher.Constraint("Horizontal", 11),
    Sketcher.Constraint("Vertical", 12),
    Sketcher.Constraint("Horizontal", 13),
    Sketcher.Constraint("Vertical", 15),
    Sketcher.Constraint("Horizontal", 16),
    Sketcher.Constraint("Vertical", 17),
    Sketcher.Constraint("Horizontal", 18),
    Sketcher.Constraint("Equal", 4, 9),
    Sketcher.Constraint("Equal", 9, 14),
    Sketcher.Constraint("Equal", 14, 19),
    Sketcher.Constraint("Horizontal", 4, 3, 9, 3),
    Sketcher.Constraint("Horizontal", 14, 3, 19, 3),
    Sketcher.Constraint("Horizontal", 1, 2, 5, 2),
    Sketcher.Constraint("Horizontal", 3, 2, 7, 2),
    Sketcher.Constraint("Horizontal", 11, 2, 15, 2),
    Sketcher.Constraint("Horizontal", 13, 2, 17, 2),
    Sketcher.Constraint("Vertical", 4, 3, 14, 3),
    Sketcher.Constraint("Vertical", 9, 3, 19, 3),
    Sketcher.Constraint("Vertical", 3, 2, 10, 2),
    Sketcher.Constraint("Vertical", 2, 2, 11, 2),
    Sketcher.Constraint("Vertical", 8, 2, 15, 2),
    Sketcher.Constraint("Vertical", 7, 2, 16, 2),
    Sketcher.Constraint("Equal", 3, 6),
    Sketcher.Constraint("Equal", 18, 0),
    Sketcher.Constraint("Equal", 7, 10),
    Sketcher.Constraint("Diameter", 4, Q("3 mm")),
    Sketcher.Constraint("DistanceX", 1, 1, 1, 2, Q("6 mm")),
    Sketcher.Constraint("DistanceX", 0, 2, 4, 3, Q("3 mm")),
    Sketcher.Constraint("DistanceY", 4, 3, 0, 2, Q("3 mm")),
    Sketcher.Constraint("DistanceX", 5, 2, 9, 3, Q("3 mm")),
    Sketcher.Constraint("DistanceY", 14, 3, 10, 2, Q("3 mm")),
    Sketcher.Constraint("DistanceX", 4, 3, 9, 3, Q("36.7 mm")),
    Sketcher.Constraint("DistanceY", 4, 3, 14, 3, Q("36.7 mm")),
    Sketcher.Constraint("DistanceY", -1, 1, 4, 3, Q("49.55 mm")),
    Sketcher.Constraint("DistanceX", -1, 1, 4, 3, Q("11.057181 mm")),
])
pad9 = body.newObject("PartDesign::Pad", "Pad008")
pad9.Profile = sketch13
pad9.Length = 3
pad9.Reversed = True

# Sketch on XZ plane
sketch14 = body.newObject("Sketcher::SketchObject", "Sketch013")
sketch14.AttachmentSupport = (doc.getObject("XZ_Plane"), [""])
sketch14.MapMode = "FlatFace"
sketch14.AttachmentOffset = App.Placement(App.Vector(0, 0, -5.08), App.Rotation())
sketch14.addGeometry([
    Part.Circle(App.Vector(11.1, 49.5, 0), App.Vector(0, 0, 1), 1.5),
    Part.Circle(App.Vector(47.8, 49.5, 0), App.Vector(0, 0, 1), 1.5),
    Part.Circle(App.Vector(47.8, 86.2, 0), App.Vector(0, 0, 1), 1.5),
    Part.Circle(App.Vector(11.1, 86.2, 0), App.Vector(0, 0, 1), 1.5),
], False)
sketch14.addConstraint([
    Sketcher.Constraint("Equal", 0, 1),
    Sketcher.Constraint("Equal", 1, 2),
    Sketcher.Constraint("Equal", 2, 3),
    Sketcher.Constraint("Horizontal", 0, 3, 1, 3),
    Sketcher.Constraint("Horizontal", 2, 3, 3, 3),
    Sketcher.Constraint("Vertical", 1, 3, 2, 3),
    Sketcher.Constraint("Vertical", 0, 3, 3, 3),
    Sketcher.Constraint("Diameter", 0, Q("3 mm")),
    Sketcher.Constraint("DistanceX", 0, 3, 1, 3, Q("36.7 mm")),
    Sketcher.Constraint("DistanceY", 1, 3, 2, 3, Q("36.7 mm")),
    Sketcher.Constraint("DistanceY", -1, 1, 0, 3, Q("49.55 mm")),
    Sketcher.Constraint("DistanceX", -1, 1, 0, 3, Q("11.057181 mm")),
])
pocket5 = body.newObject("PartDesign::Pocket", "Pocket004")
pocket5.Profile = sketch14
pocket5.Length = 10
pocket5.Reversed = True

# Sketch on XZ plane
sketch15 = body.newObject("Sketcher::SketchObject", "Sketch014")
sketch15.AttachmentSupport = (doc.getObject("XZ_Plane"), [""])
sketch15.MapMode = "FlatFace"
sketch15.AttachmentOffset = App.Placement(App.Vector(0, 0, -5.08), App.Rotation())
sketch15.addGeometry([
    Part.Circle(App.Vector(7.5, -64.8, 0), App.Vector(0, 0, 1), 1.4),
    Part.Circle(App.Vector(56.5, -64.8, 0), App.Vector(0, 0, 1), 1.4),
    Part.Circle(App.Vector(56.5, -6.8, 0), App.Vector(0, 0, 1), 1.4),
    Part.Circle(App.Vector(7.5, -6.8, 0), App.Vector(0, 0, 1), 1.4),
], False)
sketch15.addConstraint([
    Sketcher.Constraint("Equal", 0, 1),
    Sketcher.Constraint("Equal", 1, 2),
    Sketcher.Constraint("Equal", 2, 3),
    Sketcher.Constraint("Horizontal", 0, 3, 1, 3),
    Sketcher.Constraint("Horizontal", 2, 3, 3, 3),
    Sketcher.Constraint("Vertical", 1, 3, 2, 3),
    Sketcher.Constraint("Vertical", 0, 3, 3, 3),
    Sketcher.Constraint("Diameter", 0, Q("2.7 mm")),
    Sketcher.Constraint("DistanceX", 0, 3, 1, 3, Q("49 mm")),
    Sketcher.Constraint("DistanceY", 1, 3, 2, 3, Q("58 mm")),
    Sketcher.Constraint("DistanceX", -1, 1, 0, 3, Q("7.5 mm")),
    Sketcher.Constraint("DistanceY", 0, 3, -1, 1, Q("64.85 mm")),
])
pocket6 = body.newObject("PartDesign::Pocket", "Pocket005")
pocket6.Profile = sketch15
pocket6.Length = 10
pocket6.Reversed = True

# Sketch on XZ plane
sketch16 = body.newObject("Sketcher::SketchObject", "Sketch015")
sketch16.AttachmentSupport = (doc.getObject("XZ_Plane"), [""])
sketch16.MapMode = "FlatFace"
sketch16.AttachmentOffset = App.Placement(App.Vector(0, 0, -5.08), App.Rotation())
sketch16.addGeometry([
    Part.Circle(App.Vector(-89.7, -18.9, 0), App.Vector(0, 0, 1), 1.5),
    Part.Circle(App.Vector(-105.7, -49, 0), App.Vector(0, 0, 1), 1.5),
], False)
sketch16.addConstraint([
    Sketcher.Constraint("Equal", 0, 1),
    Sketcher.Constraint("Diameter", 0, Q("3 mm")),
    Sketcher.Constraint("DistanceX", 1, 3, 0, 3, Q("16 mm")),
    Sketcher.Constraint("DistanceY", 1, 3, 0, 3, Q("30 mm")),
    Sketcher.Constraint("DistanceX", 0, 3, -1, 1, Q("89.65 mm")),
    Sketcher.Constraint("DistanceY", 0, 3, -1, 1, Q("18.95 mm")),
])
pocket7 = body.newObject("PartDesign::Pocket", "Pocket006")
pocket7.Profile = sketch16
pocket7.Length = 10
pocket7.Reversed = True

# Sketch on YZ plane
sketch17 = body.newObject("Sketcher::SketchObject", "Sketch016")
sketch17.AttachmentSupport = (doc.getObject("YZ_Plane"), [""])
sketch17.MapMode = "FlatFace"
sketch17.AttachmentOffset = App.Placement(App.Vector(0, 0, 93.5), App.Rotation())
sketch17.addGeometry(Part.Circle(App.Vector(20, 13, 0), App.Vector(0, 0, 1), 8), False)
sketch17.addConstraint([
    Sketcher.Constraint("Diameter", 0, Q("15 mm")),
    Sketcher.Constraint("DistanceX", -1, 1, 0, 3, Q("20 mm")),
    Sketcher.Constraint("DistanceY", -1, 1, 0, 3, Q("12.7 mm")),
])
pocket8 = body.newObject("PartDesign::Pocket", "Pocket007")
pocket8.Profile = sketch17
pocket8.Length = 10

# Sketch on YZ plane
sketch18 = body.newObject("Sketcher::SketchObject", "Sketch017")
sketch18.AttachmentSupport = (doc.getObject("YZ_Plane"), [""])
sketch18.MapMode = "FlatFace"
sketch18.AttachmentOffset = App.Placement(App.Vector(0, 0, 93.5), App.Rotation())
sketch18.addGeometry([
    Part.Circle(App.Vector(20, 13, 0), App.Vector(0, 0, 1), 10),
    Part.Circle(App.Vector(20, 13, 0), App.Vector(0, 0, 1), 8),
], False)
sketch18.addConstraint([
    Sketcher.Constraint("Coincident", 1, 3, 0, 3),
    Sketcher.Constraint("Diameter", 0, Q("21 mm")),
    Sketcher.Constraint("Diameter", 1, Q("15 mm")),
    Sketcher.Constraint("DistanceX", -1, 1, 0, 3, Q("20 mm")),
    Sketcher.Constraint("DistanceY", -1, 1, 0, 3, Q("12.7 mm")),
])
pocket9 = body.newObject("PartDesign::Pocket", "Pocket008")
pocket9.Profile = sketch18
pocket9.Length = 4
doc.recompute()

chamfer3 = body.newObject("PartDesign::Chamfer", "Chamfer002")
chamfer3.Base = (pocket9, edges_at(pocket9, [(93.5, 20, 23.2)]))
chamfer3.Size = 0.5

# Sketch on XZ plane
sketch19 = body.newObject("Sketcher::SketchObject", "Sketch018")
sketch19.AttachmentSupport = (doc.getObject("XZ_Plane"), [""])
sketch19.MapMode = "FlatFace"
sketch19.AttachmentOffset = App.Placement(App.Vector(0, 0, -5.08), App.Rotation())
sketch19.addGeometry([
    Part.Circle(App.Vector(-89.7, -49, 0), App.Vector(0, 0, 1), 1.5),
    Part.Circle(App.Vector(-105.7, -18.9, 0), App.Vector(0, 0, 1), 1.5),
], False)
sketch19.addConstraint([
    Sketcher.Constraint("Equal", 0, 1),
    Sketcher.Constraint("Diameter", 0, Q("3 mm")),
    Sketcher.Constraint("DistanceX", 1, 3, 0, 3, Q("16 mm")),
    Sketcher.Constraint("DistanceY", 0, 3, 1, 3, Q("30 mm")),
    Sketcher.Constraint("DistanceX", 0, 3, -1, 1, Q("89.65 mm")),
    Sketcher.Constraint("DistanceY", 0, 3, -1, 1, Q("48.95 mm")),
])
pocket10 = body.newObject("PartDesign::Pocket", "Pocket009")
pocket10.Profile = sketch19
pocket10.Length = 10
pocket10.Reversed = True

# Sketch on YZ plane
sketch20 = body.newObject("Sketcher::SketchObject", "Sketch019")
sketch20.AttachmentSupport = (doc.getObject("YZ_Plane"), [""])
sketch20.MapMode = "FlatFace"
sketch20.AttachmentOffset = App.Placement(App.Vector(0, 0, 93.5), App.Rotation())
sketch20.addGeometry([
    Part.Circle(App.Vector(43.5, 42.7, 0), App.Vector(0, 0, 1), 1.5),
    Part.Circle(App.Vector(43.5, -17.3, 0), App.Vector(0, 0, 1), 1.5),
    Part.Circle(App.Vector(13.5, 42.7, 0), App.Vector(0, 0, 1), 1.5),
    Part.Circle(App.Vector(13.5, -17.3, 0), App.Vector(0, 0, 1), 1.5),
], False)
sketch20.addConstraint([
    Sketcher.Constraint("Equal", 0, 1),
    Sketcher.Constraint("Equal", 1, 2),
    Sketcher.Constraint("Equal", 2, 3),
    Sketcher.Constraint("Horizontal", 0, 3, 2, 3),
    Sketcher.Constraint("Horizontal", 1, 3, 3, 3),
    Sketcher.Constraint("Vertical", 0, 3, 1, 3),
    Sketcher.Constraint("Vertical", 2, 3, 3, 3),
    Sketcher.Constraint("Diameter", 0, Q("3 mm")),
    Sketcher.Constraint("DistanceY", 1, 3, 0, 3, Q("60 mm")),
    Sketcher.Constraint("DistanceX", 2, 3, 0, 3, Q("30 mm")),
    Sketcher.Constraint("DistanceX", -1, 1, 0, 3, Q("43.5 mm")),
    Sketcher.Constraint("DistanceY", -1, 1, 0, 3, Q("42.7 mm")),
])
pocket11 = body.newObject("PartDesign::Pocket", "Pocket010")
pocket11.Profile = sketch20
pocket11.Length = 10

doc.recompute()
